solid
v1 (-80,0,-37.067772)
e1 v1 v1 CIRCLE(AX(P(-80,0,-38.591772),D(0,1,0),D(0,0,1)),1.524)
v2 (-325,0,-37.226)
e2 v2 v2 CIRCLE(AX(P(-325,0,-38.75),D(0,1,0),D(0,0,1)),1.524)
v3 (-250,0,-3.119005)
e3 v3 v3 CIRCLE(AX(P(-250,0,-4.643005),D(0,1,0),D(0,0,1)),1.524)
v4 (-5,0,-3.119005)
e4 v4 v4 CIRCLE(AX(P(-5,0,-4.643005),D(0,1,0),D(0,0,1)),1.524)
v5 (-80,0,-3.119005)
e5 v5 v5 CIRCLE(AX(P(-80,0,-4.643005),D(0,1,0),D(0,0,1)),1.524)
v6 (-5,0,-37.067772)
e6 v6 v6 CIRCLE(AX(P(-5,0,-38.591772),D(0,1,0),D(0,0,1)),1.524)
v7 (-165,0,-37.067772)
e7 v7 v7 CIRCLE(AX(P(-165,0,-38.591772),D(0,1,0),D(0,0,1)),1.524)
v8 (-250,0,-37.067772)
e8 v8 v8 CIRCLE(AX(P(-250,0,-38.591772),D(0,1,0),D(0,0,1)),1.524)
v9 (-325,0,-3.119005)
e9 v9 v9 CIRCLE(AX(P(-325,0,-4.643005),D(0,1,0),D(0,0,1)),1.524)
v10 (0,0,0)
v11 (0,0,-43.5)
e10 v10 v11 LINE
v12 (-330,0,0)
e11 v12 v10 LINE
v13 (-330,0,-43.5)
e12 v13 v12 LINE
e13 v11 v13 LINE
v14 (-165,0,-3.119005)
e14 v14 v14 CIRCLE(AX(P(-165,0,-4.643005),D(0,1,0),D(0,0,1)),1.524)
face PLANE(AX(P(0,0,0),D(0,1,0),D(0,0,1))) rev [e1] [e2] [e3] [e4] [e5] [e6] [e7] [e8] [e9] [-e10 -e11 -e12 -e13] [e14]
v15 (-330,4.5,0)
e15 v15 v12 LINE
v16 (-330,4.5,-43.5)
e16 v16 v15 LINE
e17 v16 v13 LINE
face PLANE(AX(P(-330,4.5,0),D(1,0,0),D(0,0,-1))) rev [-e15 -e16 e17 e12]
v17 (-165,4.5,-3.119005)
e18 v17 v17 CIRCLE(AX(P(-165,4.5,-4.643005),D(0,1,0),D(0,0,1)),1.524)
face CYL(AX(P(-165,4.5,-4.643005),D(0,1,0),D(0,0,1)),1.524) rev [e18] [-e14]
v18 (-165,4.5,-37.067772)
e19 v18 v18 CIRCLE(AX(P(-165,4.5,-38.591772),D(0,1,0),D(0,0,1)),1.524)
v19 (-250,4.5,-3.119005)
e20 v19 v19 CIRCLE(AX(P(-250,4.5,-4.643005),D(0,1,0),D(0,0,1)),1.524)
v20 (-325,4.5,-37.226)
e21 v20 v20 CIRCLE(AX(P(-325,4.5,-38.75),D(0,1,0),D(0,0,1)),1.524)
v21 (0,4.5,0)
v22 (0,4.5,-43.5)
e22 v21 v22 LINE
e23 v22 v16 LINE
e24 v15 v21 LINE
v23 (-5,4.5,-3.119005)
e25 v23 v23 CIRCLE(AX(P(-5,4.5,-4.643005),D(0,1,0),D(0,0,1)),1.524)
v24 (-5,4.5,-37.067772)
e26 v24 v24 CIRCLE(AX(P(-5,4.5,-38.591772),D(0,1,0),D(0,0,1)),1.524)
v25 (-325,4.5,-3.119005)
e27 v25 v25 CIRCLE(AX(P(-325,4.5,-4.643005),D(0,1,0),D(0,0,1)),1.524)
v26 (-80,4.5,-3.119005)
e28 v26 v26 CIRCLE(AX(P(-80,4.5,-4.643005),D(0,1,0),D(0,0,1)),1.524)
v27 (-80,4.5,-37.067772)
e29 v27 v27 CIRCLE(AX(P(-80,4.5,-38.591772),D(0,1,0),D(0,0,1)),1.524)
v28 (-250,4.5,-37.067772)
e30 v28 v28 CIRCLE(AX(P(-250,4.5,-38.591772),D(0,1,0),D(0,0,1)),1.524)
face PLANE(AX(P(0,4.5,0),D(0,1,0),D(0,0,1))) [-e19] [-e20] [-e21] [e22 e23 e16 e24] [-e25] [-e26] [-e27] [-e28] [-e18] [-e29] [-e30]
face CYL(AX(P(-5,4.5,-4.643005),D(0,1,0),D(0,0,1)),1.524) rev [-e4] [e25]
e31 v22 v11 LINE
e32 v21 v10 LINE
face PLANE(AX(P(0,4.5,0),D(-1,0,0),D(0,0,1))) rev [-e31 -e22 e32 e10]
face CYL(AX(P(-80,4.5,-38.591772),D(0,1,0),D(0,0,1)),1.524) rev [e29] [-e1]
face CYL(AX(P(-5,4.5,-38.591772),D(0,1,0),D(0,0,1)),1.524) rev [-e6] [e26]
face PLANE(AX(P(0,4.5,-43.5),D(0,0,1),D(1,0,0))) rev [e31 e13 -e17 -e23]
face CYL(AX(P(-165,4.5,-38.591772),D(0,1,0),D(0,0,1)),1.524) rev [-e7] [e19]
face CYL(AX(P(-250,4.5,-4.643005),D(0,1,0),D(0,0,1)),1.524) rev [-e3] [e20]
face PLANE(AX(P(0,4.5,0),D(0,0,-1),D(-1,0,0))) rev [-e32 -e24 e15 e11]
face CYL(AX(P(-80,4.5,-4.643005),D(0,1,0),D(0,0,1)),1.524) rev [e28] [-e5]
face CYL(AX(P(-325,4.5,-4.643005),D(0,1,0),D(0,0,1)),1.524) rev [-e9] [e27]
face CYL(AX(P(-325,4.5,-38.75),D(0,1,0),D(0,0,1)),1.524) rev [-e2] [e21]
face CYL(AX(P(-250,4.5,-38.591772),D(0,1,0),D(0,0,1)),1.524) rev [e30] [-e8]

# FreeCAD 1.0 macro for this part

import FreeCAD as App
import Part
import Sketcher


def add_polygon(sketch, points):
    """Adds a closed chain of lines whose ends are joined by coincident constraints."""
    first, n = sketch.GeometryCount, len(points)
    for a, b in zip(points, points[1:] + points[:1]):
        sketch.addGeometry(Part.LineSegment(App.Vector(*a, 0), App.Vector(*b, 0)), False)
    for i in range(n):
        sketch.addConstraint(Sketcher.Constraint("Coincident", first + i, 2, first + (i + 1) % n, 1))

doc = App.newDocument("Part")
params = doc.addObject("Spreadsheet::Sheet", "Params")
for row, (alias, value) in enumerate([
    ("sketch1_width", "330 mm"),
    ("sketch1_height", "43.5 mm"),
    ("pad1_length", "4.5 mm"),
    ("hole_diameter", "3.048 mm"),
], start=1):
    params.set(f"A{row}", alias)
    params.set(f"B{row}", "=" + value)
    params.setAlias(f"B{row}", alias)

body = doc.addObject("PartDesign::Body", "Body")

sketch1 = doc.addObject("Sketcher::SketchObject", "Sketch")
body.addObject(sketch1)
sketch1.AttachmentSupport = (doc.XZ_Plane, [""])
sketch1.MapMode = "FlatFace"
add_polygon(sketch1, [(-330, -44), (-330, 0), (0, 0), (0, -44)])
sketch1.addConstraint(Sketcher.Constraint("Vertical", 0))
sketch1.addConstraint(Sketcher.Constraint("Horizontal", 1))
sketch1.addConstraint(Sketcher.Constraint("Vertical", 2))
sketch1.addConstraint(Sketcher.Constraint("Horizontal", 3))
sketch1.addConstraint(Sketcher.Constraint("Coincident", 1, 2, -1, 1))
sketch1.addConstraint(Sketcher.Constraint("DistanceX", 1, 1, 1, 2, 330.0))
sketch1.addConstraint(Sketcher.Constraint("DistanceY", 0, 1, 0, 2, 43.5))
sketch1.setExpression("Constraints[9]", "Params.sketch1_width")
sketch1.setExpression("Constraints[10]", "Params.sketch1_height")
pad1 = doc.addObject("PartDesign::Pad", "Pad")
body.addObject(pad1)
pad1.Profile = sketch1
pad1.setExpression("Length", "Params.pad1_length")
pad1.Reversed = True

sketch2 = doc.addObject("Sketcher::SketchObject", "Sketch001")
body.addObject(sketch2)
sketch2.AttachmentSupport = (doc.XZ_Plane, [""])
sketch2.MapMode = "FlatFace"
sketch2.AttachmentOffset = App.Placement(App.Vector(0, 0, -4.5), App.Rotation())
sketch2.addGeometry(Part.Circle(App.Vector(-325, -38.8, 0), App.Vector(0, 0, 1), 1.5), False)
sketch2.addGeometry(Part.Circle(App.Vector(-325, -4.6, 0), App.Vector(0, 0, 1), 1.5), False)
sketch2.addGeometry(Part.Circle(App.Vector(-250, -4.6, 0), App.Vector(0, 0, 1), 1.5), False)
sketch2.addGeometry(Part.Circle(App.Vector(-250, -38.6, 0), App.Vector(0, 0, 1), 1.5), False)
sketch2.addGeometry(Part.Circle(App.Vector(-165, -38.6, 0), App.Vector(0, 0, 1), 1.5), False)
sketch2.addGeometry(Part.Circle(App.Vector(-165, -4.6, 0), App.Vector(0, 0, 1), 1.5), False)
sketch2.addGeometry(Part.Circle(App.Vector(-80, -4.6, 0), App.Vector(0, 0, 1), 1.5), False)
sketch2.addGeometry(Part.Circle(App.Vector(-80, -38.6, 0), App.Vector(0, 0, 1), 1.5), False)
sketch2.addGeometry(Part.Circle(App.Vector(-5, -38.6, 0), App.Vector(0, 0, 1), 1.5), False)
sketch2.addGeometry(Part.Circle(App.Vector(-5, -4.6, 0), App.Vector(0, 0, 1), 1.5), False)
sketch2.addConstraint(Sketcher.Constraint("Equal", 0, 1))
sketch2.addConstraint(Sketcher.Constraint("Equal", 1, 2))
sketch2.addConstraint(Sketcher.Constraint("Equal", 2, 3))
sketch2.addConstraint(Sketcher.Constraint("Equal", 3, 4))
sketch2.addConstraint(Sketcher.Constraint("Equal", 4, 5))
sketch2.addConstraint(Sketcher.Constraint("Equal", 5, 6))
sketch2.addConstraint(Sketcher.Constraint("Equal", 6, 7))
sketch2.addConstraint(Sketcher.Constraint("Equal", 7, 8))
sketch2.addConstraint(Sketcher.Constraint("Equal", 8, 9))
sketch2.addConstraint(Sketcher.Constraint("Horizontal", 1, 3, 2, 3))
sketch2.addConstraint(Sketcher.Constraint("Horizontal", 3, 3, 4, 3))
sketch2.addConstraint(Sketcher.Constraint("Horizontal", 2, 3, 5, 3))
sketch2.addConstraint(Sketcher.Constraint("Horizontal", 5, 3, 6, 3))
sketch2.addConstraint(Sketcher.Constraint("Horizontal", 4, 3, 7, 3))
sketch2.addConstraint(Sketcher.Constraint("Horizontal", 7, 3, 8, 3))
sketch2.addConstraint(Sketcher.Constraint("Horizontal", 6, 3, 9, 3))
sketch2.addConstraint(Sketcher.Constraint("Vertical", 0, 3, 1, 3))
sketch2.addConstraint(Sketcher.Constraint("Vertical", 2, 3, 3, 3))
sketch2.addConstraint(Sketcher.Constraint("Vertical", 4, 3, 5, 3))
sketch2.addConstraint(Sketcher.Constraint("Vertical", 6, 3, 7, 3))
sketch2.addConstraint(Sketcher.Constraint("Vertical", 8, 3, 9, 3))
sketch2.addConstraint(Sketcher.Constraint("Diameter", 0, 3.048))
sketch2.addConstraint(Sketcher.Constraint("DistanceX", 0, 3, -1, 1, 325.0))
sketch2.addConstraint(Sketcher.Constraint("DistanceX", 2, 3, -1, 1, 250.0))
sketch2.addConstraint(Sketcher.Constraint("DistanceX", 4, 3, -1, 1, 165.0))
sketch2.addConstraint(Sketcher.Constraint("DistanceX", 6, 3, -1, 1, 80.0))
sketch2.addConstraint(Sketcher.Constraint("DistanceX", 8, 3, -1, 1, 5.0))
sketch2.addConstraint(Sketcher.Constraint("DistanceY", 0, 3, -1, 1, 38.75))
sketch2.addConstraint(Sketcher.Constraint("DistanceY", 3, 3, -1, 1, 38.591772))
sketch2.addConstraint(Sketcher.Constraint("DistanceY", 1, 3, -1, 1, 4.643005))
doc.recompute()
hole = doc.addObject("PartDesign::Hole", "Hole")
body.addObject(hole)
hole.Profile = sketch2
hole.ThreadType = "None"
hole.setExpression("Diameter", "Params.hole_diameter")
hole.DepthType = "ThroughAll"
hole.Reversed = True

doc.recompute()
